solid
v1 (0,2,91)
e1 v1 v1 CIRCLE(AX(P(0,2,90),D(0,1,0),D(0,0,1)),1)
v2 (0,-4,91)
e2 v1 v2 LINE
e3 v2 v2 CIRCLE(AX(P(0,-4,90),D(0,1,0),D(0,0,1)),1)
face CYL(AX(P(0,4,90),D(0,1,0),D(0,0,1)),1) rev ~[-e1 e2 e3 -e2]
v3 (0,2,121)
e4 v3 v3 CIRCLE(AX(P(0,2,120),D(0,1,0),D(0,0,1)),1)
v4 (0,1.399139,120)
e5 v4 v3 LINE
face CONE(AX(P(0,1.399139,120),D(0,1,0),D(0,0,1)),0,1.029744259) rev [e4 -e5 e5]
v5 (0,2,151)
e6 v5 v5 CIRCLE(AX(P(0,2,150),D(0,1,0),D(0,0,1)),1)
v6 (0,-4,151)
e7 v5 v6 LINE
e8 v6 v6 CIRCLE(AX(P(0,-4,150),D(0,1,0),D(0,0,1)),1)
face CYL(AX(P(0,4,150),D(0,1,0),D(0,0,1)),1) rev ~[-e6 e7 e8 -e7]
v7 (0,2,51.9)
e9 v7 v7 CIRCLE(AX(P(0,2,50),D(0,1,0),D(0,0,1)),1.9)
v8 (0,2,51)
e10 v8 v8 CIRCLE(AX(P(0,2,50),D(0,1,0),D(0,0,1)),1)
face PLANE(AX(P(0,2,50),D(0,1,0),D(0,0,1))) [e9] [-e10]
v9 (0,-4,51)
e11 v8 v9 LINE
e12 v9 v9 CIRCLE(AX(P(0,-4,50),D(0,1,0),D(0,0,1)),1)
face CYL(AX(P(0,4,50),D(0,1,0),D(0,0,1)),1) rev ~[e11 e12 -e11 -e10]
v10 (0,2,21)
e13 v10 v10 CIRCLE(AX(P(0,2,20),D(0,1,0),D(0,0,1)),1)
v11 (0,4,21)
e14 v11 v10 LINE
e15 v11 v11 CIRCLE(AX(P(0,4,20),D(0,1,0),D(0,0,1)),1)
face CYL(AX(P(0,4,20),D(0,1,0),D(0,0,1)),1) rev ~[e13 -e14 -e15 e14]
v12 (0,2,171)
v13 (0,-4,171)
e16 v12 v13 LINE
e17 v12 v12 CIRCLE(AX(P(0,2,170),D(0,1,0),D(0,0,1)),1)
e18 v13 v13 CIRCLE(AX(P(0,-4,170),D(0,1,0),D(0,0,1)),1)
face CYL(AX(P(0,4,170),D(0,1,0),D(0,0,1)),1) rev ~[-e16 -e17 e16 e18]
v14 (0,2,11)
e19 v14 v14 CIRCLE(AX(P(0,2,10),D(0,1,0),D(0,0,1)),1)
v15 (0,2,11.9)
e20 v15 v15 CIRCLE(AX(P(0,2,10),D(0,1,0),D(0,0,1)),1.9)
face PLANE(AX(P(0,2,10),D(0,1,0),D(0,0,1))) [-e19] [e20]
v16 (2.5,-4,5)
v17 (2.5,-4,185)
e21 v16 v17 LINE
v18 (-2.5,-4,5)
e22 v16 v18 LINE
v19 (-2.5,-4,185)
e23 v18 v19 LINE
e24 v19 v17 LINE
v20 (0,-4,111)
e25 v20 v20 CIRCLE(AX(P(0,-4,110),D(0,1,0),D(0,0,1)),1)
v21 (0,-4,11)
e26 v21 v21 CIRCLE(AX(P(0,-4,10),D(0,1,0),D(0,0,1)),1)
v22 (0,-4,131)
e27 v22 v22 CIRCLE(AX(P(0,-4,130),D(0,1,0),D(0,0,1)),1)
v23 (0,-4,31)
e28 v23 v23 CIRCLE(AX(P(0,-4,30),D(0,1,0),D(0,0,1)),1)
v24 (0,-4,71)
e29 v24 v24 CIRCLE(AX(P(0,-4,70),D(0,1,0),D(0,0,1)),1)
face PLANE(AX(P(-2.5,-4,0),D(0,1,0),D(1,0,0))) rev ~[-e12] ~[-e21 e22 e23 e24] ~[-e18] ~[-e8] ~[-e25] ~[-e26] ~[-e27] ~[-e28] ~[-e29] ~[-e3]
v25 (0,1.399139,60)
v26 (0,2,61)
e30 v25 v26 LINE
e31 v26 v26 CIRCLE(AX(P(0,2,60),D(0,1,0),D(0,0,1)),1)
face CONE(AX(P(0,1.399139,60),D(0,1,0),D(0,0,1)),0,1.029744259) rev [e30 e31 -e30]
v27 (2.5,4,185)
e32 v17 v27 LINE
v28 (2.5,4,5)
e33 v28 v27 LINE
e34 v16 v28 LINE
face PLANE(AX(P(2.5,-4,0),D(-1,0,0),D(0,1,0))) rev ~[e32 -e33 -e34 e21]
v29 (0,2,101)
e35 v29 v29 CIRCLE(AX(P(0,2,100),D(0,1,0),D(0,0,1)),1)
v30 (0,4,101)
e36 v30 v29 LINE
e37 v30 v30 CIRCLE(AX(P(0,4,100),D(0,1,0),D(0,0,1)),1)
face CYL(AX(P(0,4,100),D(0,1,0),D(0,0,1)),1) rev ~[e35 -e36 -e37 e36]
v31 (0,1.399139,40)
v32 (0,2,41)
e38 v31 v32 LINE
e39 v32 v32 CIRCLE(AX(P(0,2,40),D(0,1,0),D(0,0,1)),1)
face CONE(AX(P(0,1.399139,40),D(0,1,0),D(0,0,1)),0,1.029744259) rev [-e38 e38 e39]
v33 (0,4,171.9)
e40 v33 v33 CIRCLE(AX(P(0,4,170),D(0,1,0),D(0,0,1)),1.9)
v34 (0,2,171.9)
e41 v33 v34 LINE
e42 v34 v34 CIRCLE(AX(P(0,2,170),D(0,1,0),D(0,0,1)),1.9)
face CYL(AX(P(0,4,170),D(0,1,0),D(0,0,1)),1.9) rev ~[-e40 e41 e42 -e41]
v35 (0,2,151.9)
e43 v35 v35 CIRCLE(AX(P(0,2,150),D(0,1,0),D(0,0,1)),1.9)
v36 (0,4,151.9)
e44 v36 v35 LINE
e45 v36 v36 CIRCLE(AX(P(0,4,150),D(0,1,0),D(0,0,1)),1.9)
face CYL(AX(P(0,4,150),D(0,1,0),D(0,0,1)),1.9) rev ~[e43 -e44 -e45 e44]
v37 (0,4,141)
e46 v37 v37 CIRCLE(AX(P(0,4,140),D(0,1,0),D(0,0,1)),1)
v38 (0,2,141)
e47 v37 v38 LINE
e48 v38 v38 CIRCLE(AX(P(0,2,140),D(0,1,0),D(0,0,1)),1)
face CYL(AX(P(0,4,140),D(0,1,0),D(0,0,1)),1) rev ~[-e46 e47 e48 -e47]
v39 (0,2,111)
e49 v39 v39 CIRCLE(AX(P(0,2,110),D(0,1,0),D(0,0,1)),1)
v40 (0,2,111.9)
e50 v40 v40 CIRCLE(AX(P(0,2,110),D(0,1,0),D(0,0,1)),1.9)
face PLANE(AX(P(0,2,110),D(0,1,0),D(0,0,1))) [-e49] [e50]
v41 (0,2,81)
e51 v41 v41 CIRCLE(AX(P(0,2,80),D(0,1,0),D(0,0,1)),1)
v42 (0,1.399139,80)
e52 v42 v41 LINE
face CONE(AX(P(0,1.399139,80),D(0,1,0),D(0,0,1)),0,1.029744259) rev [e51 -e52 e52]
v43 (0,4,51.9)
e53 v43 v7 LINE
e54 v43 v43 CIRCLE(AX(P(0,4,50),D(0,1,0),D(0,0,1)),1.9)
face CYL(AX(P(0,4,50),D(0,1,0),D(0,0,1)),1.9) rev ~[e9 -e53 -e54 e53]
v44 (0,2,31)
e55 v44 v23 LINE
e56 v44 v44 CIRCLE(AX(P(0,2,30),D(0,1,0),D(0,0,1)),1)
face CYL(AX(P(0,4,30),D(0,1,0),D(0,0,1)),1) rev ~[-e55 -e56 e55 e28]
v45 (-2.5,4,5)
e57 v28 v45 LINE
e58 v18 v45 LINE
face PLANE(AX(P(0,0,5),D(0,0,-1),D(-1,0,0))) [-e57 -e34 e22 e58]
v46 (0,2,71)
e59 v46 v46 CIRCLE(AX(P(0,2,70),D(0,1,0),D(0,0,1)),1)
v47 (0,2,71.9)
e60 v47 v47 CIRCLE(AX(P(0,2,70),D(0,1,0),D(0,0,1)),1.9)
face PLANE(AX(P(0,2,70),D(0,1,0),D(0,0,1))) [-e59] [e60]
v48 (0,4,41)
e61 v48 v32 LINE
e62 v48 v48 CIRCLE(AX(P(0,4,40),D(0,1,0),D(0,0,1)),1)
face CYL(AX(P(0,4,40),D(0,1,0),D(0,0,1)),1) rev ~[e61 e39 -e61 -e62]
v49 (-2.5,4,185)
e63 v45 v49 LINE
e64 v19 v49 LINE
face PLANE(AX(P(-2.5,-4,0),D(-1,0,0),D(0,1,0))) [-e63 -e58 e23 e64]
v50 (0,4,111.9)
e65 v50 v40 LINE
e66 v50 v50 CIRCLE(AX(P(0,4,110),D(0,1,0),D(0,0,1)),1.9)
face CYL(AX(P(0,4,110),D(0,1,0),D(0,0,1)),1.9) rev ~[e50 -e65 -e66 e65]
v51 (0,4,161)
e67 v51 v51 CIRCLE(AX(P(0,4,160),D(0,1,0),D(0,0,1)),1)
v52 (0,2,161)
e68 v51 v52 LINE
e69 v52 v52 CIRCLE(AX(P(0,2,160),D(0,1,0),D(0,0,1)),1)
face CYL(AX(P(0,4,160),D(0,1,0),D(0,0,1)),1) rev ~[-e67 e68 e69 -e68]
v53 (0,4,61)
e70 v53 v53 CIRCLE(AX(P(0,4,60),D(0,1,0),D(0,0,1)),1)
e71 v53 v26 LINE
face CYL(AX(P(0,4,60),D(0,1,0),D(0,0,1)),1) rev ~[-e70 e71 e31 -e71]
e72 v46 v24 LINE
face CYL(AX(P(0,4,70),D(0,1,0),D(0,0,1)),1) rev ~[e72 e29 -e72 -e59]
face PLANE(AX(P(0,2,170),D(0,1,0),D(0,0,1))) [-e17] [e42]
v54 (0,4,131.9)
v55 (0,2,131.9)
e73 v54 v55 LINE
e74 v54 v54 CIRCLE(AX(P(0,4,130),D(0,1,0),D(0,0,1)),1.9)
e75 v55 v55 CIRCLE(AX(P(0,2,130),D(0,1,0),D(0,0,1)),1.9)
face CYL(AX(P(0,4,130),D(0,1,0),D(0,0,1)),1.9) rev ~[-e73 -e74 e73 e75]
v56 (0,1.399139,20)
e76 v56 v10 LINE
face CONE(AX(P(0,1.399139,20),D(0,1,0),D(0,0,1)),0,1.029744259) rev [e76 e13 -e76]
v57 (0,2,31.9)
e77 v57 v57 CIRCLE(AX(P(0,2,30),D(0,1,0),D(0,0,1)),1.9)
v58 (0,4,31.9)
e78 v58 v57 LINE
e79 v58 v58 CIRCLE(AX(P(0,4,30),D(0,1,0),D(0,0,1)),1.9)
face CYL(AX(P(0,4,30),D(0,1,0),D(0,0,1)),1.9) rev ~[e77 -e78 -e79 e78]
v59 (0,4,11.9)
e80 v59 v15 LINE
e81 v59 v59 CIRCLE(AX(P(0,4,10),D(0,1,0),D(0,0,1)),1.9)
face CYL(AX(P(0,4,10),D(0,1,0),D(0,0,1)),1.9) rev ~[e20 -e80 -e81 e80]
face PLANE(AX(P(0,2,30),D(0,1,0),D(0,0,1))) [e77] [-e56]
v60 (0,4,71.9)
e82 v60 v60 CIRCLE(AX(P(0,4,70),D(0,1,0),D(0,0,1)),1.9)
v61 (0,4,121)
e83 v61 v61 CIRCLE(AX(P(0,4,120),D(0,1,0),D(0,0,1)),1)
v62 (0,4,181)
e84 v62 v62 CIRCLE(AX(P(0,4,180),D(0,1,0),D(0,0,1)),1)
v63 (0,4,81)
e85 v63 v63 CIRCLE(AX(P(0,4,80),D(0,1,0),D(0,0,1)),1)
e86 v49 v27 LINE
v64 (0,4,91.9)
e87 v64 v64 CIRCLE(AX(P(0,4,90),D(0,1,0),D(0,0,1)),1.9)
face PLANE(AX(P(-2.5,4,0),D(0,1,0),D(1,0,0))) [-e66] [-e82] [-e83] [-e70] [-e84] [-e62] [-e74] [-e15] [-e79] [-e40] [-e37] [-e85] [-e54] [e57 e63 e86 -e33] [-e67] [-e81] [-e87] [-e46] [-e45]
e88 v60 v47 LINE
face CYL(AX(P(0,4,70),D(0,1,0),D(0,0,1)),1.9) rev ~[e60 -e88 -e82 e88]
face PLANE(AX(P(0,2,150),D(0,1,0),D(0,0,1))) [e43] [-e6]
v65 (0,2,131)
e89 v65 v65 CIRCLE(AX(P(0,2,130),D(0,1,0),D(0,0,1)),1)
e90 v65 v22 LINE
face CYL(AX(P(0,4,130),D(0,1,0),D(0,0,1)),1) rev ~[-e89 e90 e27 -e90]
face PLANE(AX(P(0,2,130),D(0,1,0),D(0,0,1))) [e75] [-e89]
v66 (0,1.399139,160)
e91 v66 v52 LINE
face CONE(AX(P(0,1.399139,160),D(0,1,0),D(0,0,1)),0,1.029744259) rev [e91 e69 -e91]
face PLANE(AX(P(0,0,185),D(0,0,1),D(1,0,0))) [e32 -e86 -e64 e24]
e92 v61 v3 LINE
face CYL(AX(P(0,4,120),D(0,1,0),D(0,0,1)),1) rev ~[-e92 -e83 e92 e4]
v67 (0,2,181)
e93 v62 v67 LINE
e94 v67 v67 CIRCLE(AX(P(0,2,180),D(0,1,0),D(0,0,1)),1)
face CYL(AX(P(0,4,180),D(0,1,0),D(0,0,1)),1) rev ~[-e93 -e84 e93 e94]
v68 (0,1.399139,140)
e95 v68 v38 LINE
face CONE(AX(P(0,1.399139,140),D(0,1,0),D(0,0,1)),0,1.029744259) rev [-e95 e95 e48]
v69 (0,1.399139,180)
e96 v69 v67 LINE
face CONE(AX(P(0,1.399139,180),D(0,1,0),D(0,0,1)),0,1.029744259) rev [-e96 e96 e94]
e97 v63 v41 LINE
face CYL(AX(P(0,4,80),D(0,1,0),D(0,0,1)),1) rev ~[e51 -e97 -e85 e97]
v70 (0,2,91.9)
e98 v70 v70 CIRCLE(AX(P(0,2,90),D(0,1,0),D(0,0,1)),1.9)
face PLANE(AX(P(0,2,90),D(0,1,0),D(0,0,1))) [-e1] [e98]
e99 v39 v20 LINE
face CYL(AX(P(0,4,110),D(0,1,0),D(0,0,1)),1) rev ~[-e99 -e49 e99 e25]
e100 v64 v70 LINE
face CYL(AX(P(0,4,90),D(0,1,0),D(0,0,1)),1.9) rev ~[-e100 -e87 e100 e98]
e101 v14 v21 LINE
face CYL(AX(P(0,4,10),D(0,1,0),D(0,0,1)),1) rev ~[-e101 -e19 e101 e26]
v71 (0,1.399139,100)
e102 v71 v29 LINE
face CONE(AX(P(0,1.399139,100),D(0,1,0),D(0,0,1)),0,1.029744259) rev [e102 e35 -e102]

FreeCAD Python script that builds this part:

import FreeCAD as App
import Part
import Sketcher
from FreeCAD import Vector
Q = App.Units.Quantity

doc = App.newDocument("Part")
body = doc.addObject("PartDesign::Body", "Body")

sketch1 = body.newObject("Sketcher::SketchObject", "Sketch")
sketch1.AttachmentSupport = (doc.getObject("XY_Plane"), [""])
sketch1.MapMode = "FlatFace"
sketch1.addGeometry([
    Part.LineSegment(Vector(-2, 4, 0), Vector(-2, -4, 0)),
    Part.LineSegment(Vector(-2, -4, 0), Vector(2, -4, 0)),
    Part.LineSegment(Vector(2, -4, 0), Vector(2, 4, 0)),
    Part.LineSegment(Vector(2, 4, 0), Vector(-2, 4, 0)),
], False)
sketch1.addConstraint([
    Sketcher.Constraint("Coincident", 0, 2, 1, 1),
    Sketcher.Constraint("Coincident", 1, 2, 2, 1),
    Sketcher.Constraint("Coincident", 2, 2, 3, 1),
    Sketcher.Constraint("Coincident", 3, 2, 0, 1),
    Sketcher.Constraint("Vertical", 0),
    Sketcher.Constraint("Horizontal", 1),
    Sketcher.Constraint("Vertical", 2),
    Sketcher.Constraint("Horizontal", 3),
    Sketcher.Constraint("Symmetric", 0, 2, 2, 2, -1, 1),
    Sketcher.Constraint("DistanceX", 1, 1, 1, 2, Q("5 mm")),
    Sketcher.Constraint("DistanceY", 0, 2, 0, 1, Q("8 mm")),
])
pad1 = body.newObject("PartDesign::Pad", "Pad")
pad1.Profile = sketch1
pad1.Length = 185

sketch2 = body.newObject("Sketcher::SketchObject", "Sketch001")
sketch2.AttachmentSupport = (doc.getObject("XZ_Plane"), [""])
sketch2.MapMode = "FlatFace"
sketch2.AttachmentOffset = App.Placement(Vector(0, 0, -4), App.Rotation())
sketch2.addGeometry([
    Part.Circle(Vector(0, 20, 0), Vector(0, 0, 1), 1),
    Part.Circle(Vector(0, 40, 0), Vector(0, 0, 1), 1),
    Part.Circle(Vector(0, 60, 0), Vector(0, 0, 1), 1),
    Part.Circle(Vector(0, 80, 0), Vector(0, 0, 1), 1),
    Part.Circle(Vector(0, 100, 0), Vector(0, 0, 1), 1),
    Part.Circle(Vector(0, 120, 0), Vector(0, 0, 1), 1),
    Part.Circle(Vector(0, 140, 0), Vector(0, 0, 1), 1),
    Part.Circle(Vector(0, 160, 0), Vector(0, 0, 1), 1),
    Part.Circle(Vector(0, 180, 0), Vector(0, 0, 1), 1),
], False)
sketch2.addConstraint([
    Sketcher.Constraint("Equal", 0, 1),
    Sketcher.Constraint("Equal", 1, 2),
    Sketcher.Constraint("Equal", 2, 3),
    Sketcher.Constraint("Equal", 3, 4),
    Sketcher.Constraint("Equal", 4, 5),
    Sketcher.Constraint("Equal", 5, 6),
    Sketcher.Constraint("Equal", 6, 7),
    Sketcher.Constraint("Equal", 7, 8),
    Sketcher.Constraint("PointOnObject", 0, 3, -2),
    Sketcher.Constraint("PointOnObject", 1, 3, -2),
    Sketcher.Constraint("PointOnObject", 2, 3, -2),
    Sketcher.Constraint("PointOnObject", 3, 3, -2),
    Sketcher.Constraint("PointOnObject", 4, 3, -2),
    Sketcher.Constraint("PointOnObject", 5, 3, -2),
    Sketcher.Constraint("PointOnObject", 6, 3, -2),
    Sketcher.Constraint("PointOnObject", 7, 3, -2),
    Sketcher.Constraint("PointOnObject", 8, 3, -2),
    Sketcher.Constraint("Diameter", 0, Q("2 mm")),
    Sketcher.Constraint("DistanceY", -1, 1, 0, 3, Q("20 mm")),
    Sketcher.Constraint("DistanceY", -1, 1, 1, 3, Q("40 mm")),
    Sketcher.Constraint("DistanceY", -1, 1, 2, 3, Q("60 mm")),
    Sketcher.Constraint("DistanceY", -1, 1, 3, 3, Q("80 mm")),
    Sketcher.Constraint("DistanceY", -1, 1, 4, 3, Q("100 mm")),
    Sketcher.Constraint("DistanceY", -1, 1, 5, 3, Q("120 mm")),
    Sketcher.Constraint("DistanceY", -1, 1, 6, 3, Q("140 mm")),
    Sketcher.Constraint("DistanceY", -1, 1, 7, 3, Q("160 mm")),
    Sketcher.Constraint("DistanceY", -1, 1, 8, 3, Q("180 mm")),
])
pocket1 = body.newObject("PartDesign::Pocket", "Pocket")
pocket1.Profile = sketch2
pocket1.Length = 2
pocket1.Reversed = True

sketch3 = body.newObject("Sketcher::SketchObject", "Sketch002")
sketch3.AttachmentSupport = (doc.getObject("YZ_Plane"), [""])
sketch3.MapMode = "FlatFace"
sketch3.addGeometry([
    Part.LineSegment(Vector(1.4, 20, 0), Vector(4, 20, 0)),
    Part.LineSegment(Vector(4, 20, 0), Vector(4, 21, 0)),
    Part.LineSegment(Vector(4, 21, 0), Vector(2, 21, 0)),
    Part.LineSegment(Vector(2, 21, 0), Vector(1.4, 20, 0)),
], False)
sketch3.addGeometry(Part.LineSegment(Vector(4, 20, 0), Vector(1.4, 20, 0)), True)
sketch3.addConstraint([
    Sketcher.Constraint("Coincident", 0, 2, 1, 1),
    Sketcher.Constraint("Coincident", 1, 2, 2, 1),
    Sketcher.Constraint("Coincident", 2, 2, 3, 1),
    Sketcher.Constraint("Coincident", 3, 2, 0, 1),
    Sketcher.Constraint("Horizontal", 0),
    Sketcher.Constraint("Vertical", 1),
    Sketcher.Constraint("Horizontal", 2),
    Sketcher.Constraint("Horizontal", 4),
    Sketcher.Constraint("Coincident", 4, 1, 0, 2),
    Sketcher.Constraint("Equal", 0, 4),
    Sketcher.Constraint("DistanceX", 2, 2, 2, 1, Q("2 mm")),
    Sketcher.Constraint("DistanceY", 1, 1, 1, 2, Q("1 mm")),
    Sketcher.Constraint("Angle", 3, Q("-121 deg")),
    Sketcher.Constraint("DistanceX", -1, 1, 0, 2, Q("4 mm")),
    Sketcher.Constraint("DistanceY", -1, 1, 0, 2, Q("20 mm")),
])
groove = body.newObject("PartDesign::Groove", "Groove")
groove.Profile = sketch3
groove.ReferenceAxis = (sketch3, ["Axis0"])
groove.Angle = 360
doc.recompute()

linearpattern = body.newObject("PartDesign::LinearPattern", "LinearPattern")
linearpattern.Originals = [groove]
linearpattern.Direction = (doc.getObject("Z_Axis"), [""])
linearpattern.Mode = "offset"
linearpattern.Offset = 20
linearpattern.Occurrences = 2
body.Tip = linearpattern
doc.recompute()

linearpattern2 = body.newObject("PartDesign::LinearPattern", "LinearPattern001")
linearpattern2.Originals = [groove]
linearpattern2.Direction = (doc.getObject("Z_Axis"), [""])
linearpattern2.Mode = "offset"
linearpattern2.Offset = 20
linearpattern2.Occurrences = 8
body.Tip = linearpattern2

sketch4 = body.newObject("Sketcher::SketchObject", "Sketch003")
sketch4.AttachmentSupport = (doc.getObject("YZ_Plane"), [""])
sketch4.MapMode = "FlatFace"
sketch4.addGeometry([
    Part.LineSegment(Vector(1.4, 60, 0), Vector(4, 60, 0)),
    Part.LineSegment(Vector(4, 60, 0), Vector(4, 61, 0)),
    Part.LineSegment(Vector(4, 61, 0), Vector(2, 61, 0)),
    Part.LineSegment(Vector(2, 61, 0), Vector(1.4, 60, 0)),
], False)
sketch4.addGeometry(Part.LineSegment(Vector(4, 60, 0), Vector(1.4, 60, 0)), True)
sketch4.addConstraint([
    Sketcher.Constraint("Coincident", 0, 2, 1, 1),
    Sketcher.Constraint("Coincident", 1, 2, 2, 1),
    Sketcher.Constraint("Coincident", 2, 2, 3, 1),
    Sketcher.Constraint("Coincident", 3, 2, 0, 1),
    Sketcher.Constraint("Horizontal", 0),
    Sketcher.Constraint("Vertical", 1),
    Sketcher.Constraint("Horizontal", 2),
    Sketcher.Constraint("Horizontal", 4),
    Sketcher.Constraint("Coincident", 4, 1, 0, 2),
    Sketcher.Constraint("Equal", 0, 4),
    Sketcher.Constraint("DistanceX", 2, 2, 2, 1, Q("2 mm")),
    Sketcher.Constraint("DistanceY", 1, 1, 1, 2, Q("1 mm")),
    Sketcher.Constraint("Angle", 3, Q("-121 deg")),
    Sketcher.Constraint("DistanceX", -1, 1, 0, 2, Q("4 mm")),
    Sketcher.Constraint("DistanceY", -1, 1, 0, 2, Q("60 mm")),
])
groove2 = body.newObject("PartDesign::Groove", "Groove001")
groove2.Profile = sketch4
groove2.ReferenceAxis = (sketch4, ["Axis0"])
groove2.Angle = 360

sketch5 = body.newObject("Sketcher::SketchObject", "Sketch004")
sketch5.AttachmentSupport = (doc.getObject("YZ_Plane"), [""])
sketch5.MapMode = "FlatFace"
sketch5.addGeometry([
    Part.LineSegment(Vector(1.4, 80, 0), Vector(4, 80, 0)),
    Part.LineSegment(Vector(4, 80, 0), Vector(4, 81, 0)),
    Part.LineSegment(Vector(4, 81, 0), Vector(2, 81, 0)),
    Part.LineSegment(Vector(2, 81, 0), Vector(1.4, 80, 0)),
], False)
sketch5.addGeometry(Part.LineSegment(Vector(4, 80, 0), Vector(1.4, 80, 0)), True)
sketch5.addConstraint([
    Sketcher.Constraint("Coincident", 0, 2, 1, 1),
    Sketcher.Constraint("Coincident", 1, 2, 2, 1),
    Sketcher.Constraint("Coincident", 2, 2, 3, 1),
    Sketcher.Constraint("Coincident", 3, 2, 0, 1),
    Sketcher.Constraint("Horizontal", 0),
    Sketcher.Constraint("Vertical", 1),
    Sketcher.Constraint("Horizontal", 2),
    Sketcher.Constraint("Horizontal", 4),
    Sketcher.Constraint("Coincident", 4, 1, 0, 2),
    Sketcher.Constraint("Equal", 0, 4),
    Sketcher.Constraint("DistanceX", 2, 2, 2, 1, Q("2 mm")),
    Sketcher.Constraint("DistanceY", 1, 1, 1, 2, Q("1 mm")),
    Sketcher.Constraint("Angle", 3, Q("-121 deg")),
    Sketcher.Constraint("DistanceX", -1, 1, 0, 2, Q("4 mm")),
    Sketcher.Constraint("DistanceY", -1, 1, 0, 2, Q("80 mm")),
])
groove3 = body.newObject("PartDesign::Groove", "Groove002")
groove3.Profile = sketch5
groove3.ReferenceAxis = (sketch5, ["Axis0"])
groove3.Angle = 360

sketch6 = body.newObject("Sketcher::SketchObject", "Sketch005")
sketch6.AttachmentSupport = (doc.getObject("YZ_Plane"), [""])
sketch6.MapMode = "FlatFace"
sketch6.addGeometry([
    Part.LineSegment(Vector(1.4, 100, 0), Vector(4, 100, 0)),
    Part.LineSegment(Vector(4, 100, 0), Vector(4, 101, 0)),
    Part.LineSegment(Vector(4, 101, 0), Vector(2, 101, 0)),
    Part.LineSegment(Vector(2, 101, 0), Vector(1.4, 100, 0)),
], False)
sketch6.addGeometry(Part.LineSegment(Vector(4, 100, 0), Vector(1.4, 100, 0)), True)
sketch6.addConstraint([
    Sketcher.Constraint("Coincident", 0, 2, 1, 1),
    Sketcher.Constraint("Coincident", 1, 2, 2, 1),
    Sketcher.Constraint("Coincident", 2, 2, 3, 1),
    Sketcher.Constraint("Coincident", 3, 2, 0, 1),
    Sketcher.Constraint("Horizontal", 0),
    Sketcher.Constraint("Vertical", 1),
    Sketcher.Constraint("Horizontal", 2),
    Sketcher.Constraint("Horizontal", 4),
    Sketcher.Constraint("Coincident", 4, 1, 0, 2),
    Sketcher.Constraint("Equal", 0, 4),
    Sketcher.Constraint("DistanceX", 2, 2, 2, 1, Q("2 mm")),
    Sketcher.Constraint("DistanceY", 1, 1, 1, 2, Q("1 mm")),
    Sketcher.Constraint("Angle", 3, Q("-121 deg")),
    Sketcher.Constraint("DistanceX", -1, 1, 0, 2, Q("4 mm")),
    Sketcher.Constraint("DistanceY", -1, 1, 0, 2, Q("100 mm")),
])
groove4 = body.newObject("PartDesign::Groove", "Groove003")
groove4.Profile = sketch6
groove4.ReferenceAxis = (sketch6, ["Axis0"])
groove4.Angle = 360

sketch7 = body.newObject("Sketcher::SketchObject", "Sketch006")
sketch7.AttachmentSupport = (doc.getObject("YZ_Plane"), [""])
sketch7.MapMode = "FlatFace"
sketch7.addGeometry([
    Part.LineSegment(Vector(1.4, 120, 0), Vector(4, 120, 0)),
    Part.LineSegment(Vector(4, 120, 0), Vector(4, 121, 0)),
    Part.LineSegment(Vector(4, 121, 0), Vector(2, 121, 0)),
    Part.LineSegment(Vector(2, 121, 0), Vector(1.4, 120, 0)),
], False)
sketch7.addGeometry(Part.LineSegment(Vector(4, 120, 0), Vector(1.4, 120, 0)), True)
sketch7.addConstraint([
    Sketcher.Constraint("Coincident", 0, 2, 1, 1),
    Sketcher.Constraint("Coincident", 1, 2, 2, 1),
    Sketcher.Constraint("Coincident", 2, 2, 3, 1),
    Sketcher.Constraint("Coincident", 3, 2, 0, 1),
    Sketcher.Constraint("Horizontal", 0),
    Sketcher.Constraint("Vertical", 1),
    Sketcher.Constraint("Horizontal", 2),
    Sketcher.Constraint("Horizontal", 4),
    Sketcher.Constraint("Coincident", 4, 1, 0, 2),
    Sketcher.Constraint("Equal", 0, 4),
    Sketcher.Constraint("DistanceX", 2, 2, 2, 1, Q("2 mm")),
    Sketcher.Constraint("DistanceY", 1, 1, 1, 2, Q("1 mm")),
    Sketcher.Constraint("Angle", 3, Q("-121 deg")),
    Sketcher.Constraint("DistanceX", -1, 1, 0, 2, Q("4 mm")),
    Sketcher.Constraint("DistanceY", -1, 1, 0, 2, Q("120 mm")),
])
groove5 = body.newObject("PartDesign::Groove", "Groove004")
groove5.Profile = sketch7
groove5.ReferenceAxis = (sketch7, ["Axis0"])
groove5.Angle = 360

sketch8 = body.newObject("Sketcher::SketchObject", "Sketch007")
sketch8.AttachmentSupport = (doc.getObject("YZ_Plane"), [""])
sketch8.MapMode = "FlatFace"
sketch8.addGeometry([
    Part.LineSegment(Vector(1.4, 140, 0), Vector(4, 140, 0)),
    Part.LineSegment(Vector(4, 140, 0), Vector(4, 141, 0)),
    Part.LineSegment(Vector(4, 141, 0), Vector(2, 141, 0)),
    Part.LineSegment(Vector(2, 141, 0), Vector(1.4, 140, 0)),
], False)
sketch8.addGeometry(Part.LineSegment(Vector(4, 140, 0), Vector(1.4, 140, 0)), True)
sketch8.addConstraint([
    Sketcher.Constraint("Coincident", 0, 2, 1, 1),
    Sketcher.Constraint("Coincident", 1, 2, 2, 1),
    Sketcher.Constraint("Coincident", 2, 2, 3, 1),
    Sketcher.Constraint("Coincident", 3, 2, 0, 1),
    Sketcher.Constraint("Horizontal", 0),
    Sketcher.Constraint("Vertical", 1),
    Sketcher.Constraint("Horizontal", 2),
    Sketcher.Constraint("Horizontal", 4),
    Sketcher.Constraint("Coincident", 4, 1, 0, 2),
    Sketcher.Constraint("Equal", 0, 4),
    Sketcher.Constraint("DistanceX", 2, 2, 2, 1, Q("2 mm")),
    Sketcher.Constraint("DistanceY", 1, 1, 1, 2, Q("1 mm")),
    Sketcher.Constraint("Angle", 3, Q("-121 deg")),
    Sketcher.Constraint("DistanceX", -1, 1, 0, 2, Q("4 mm")),
    Sketcher.Constraint("DistanceY", -1, 1, 0, 2, Q("140 mm")),
])
groove6 = body.newObject("PartDesign::Groove", "Groove005")
groove6.Profile = sketch8
groove6.ReferenceAxis = (sketch8, ["Axis0"])
groove6.Angle = 360

sketch9 = body.newObject("Sketcher::SketchObject", "Sketch008")
sketch9.AttachmentSupport = (doc.getObject("YZ_Plane"), [""])
sketch9.MapMode = "FlatFace"
sketch9.addGeometry([
    Part.LineSegment(Vector(1.4, 160, 0), Vector(4, 160, 0)),
    Part.LineSegment(Vector(4, 160, 0), Vector(4, 161, 0)),
    Part.LineSegment(Vector(4, 161, 0), Vector(2, 161, 0)),
    Part.LineSegment(Vector(2, 161, 0), Vector(1.4, 160, 0)),
], False)
sketch9.addGeometry(Part.LineSegment(Vector(4, 160, 0), Vector(1.4, 160, 0)), True)
sketch9.addConstraint([
    Sketcher.Constraint("Coincident", 0, 2, 1, 1),
    Sketcher.Constraint("Coincident", 1, 2, 2, 1),
    Sketcher.Constraint("Coincident", 2, 2, 3, 1),
    Sketcher.Constraint("Coincident", 3, 2, 0, 1),
    Sketcher.Constraint("Horizontal", 0),
    Sketcher.Constraint("Vertical", 1),
    Sketcher.Constraint("Horizontal", 2),
    Sketcher.Constraint("Horizontal", 4),
    Sketcher.Constraint("Coincident", 4, 1, 0, 2),
    Sketcher.Constraint("Equal", 0, 4),
    Sketcher.Constraint("DistanceX", 2, 2, 2, 1, Q("2 mm")),
    Sketcher.Constraint("DistanceY", 1, 1, 1, 2, Q("1 mm")),
    Sketcher.Constraint("Angle", 3, Q("-121 deg")),
    Sketcher.Constraint("DistanceX", -1, 1, 0, 2, Q("4 mm")),
    Sketcher.Constraint("DistanceY", -1, 1, 0, 2, Q("160 mm")),
])
groove7 = body.newObject("PartDesign::Groove", "Groove006")
groove7.Profile = sketch9
groove7.ReferenceAxis = (sketch9, ["Axis0"])
groove7.Angle = 360

sketch10 = body.newObject("Sketcher::SketchObject", "Sketch009")
sketch10.AttachmentSupport = (doc.getObject("YZ_Plane"), [""])
sketch10.MapMode = "FlatFace"
sketch10.addGeometry([
    Part.LineSegment(Vector(1.4, 180, 0), Vector(4, 180, 0)),
    Part.LineSegment(Vector(4, 180, 0), Vector(4, 181, 0)),
    Part.LineSegment(Vector(4, 181, 0), Vector(2, 181, 0)),
    Part.LineSegment(Vector(2, 181, 0), Vector(1.4, 180, 0)),
], False)
sketch10.addGeometry(Part.LineSegment(Vector(4, 180, 0), Vector(1.4, 180, 0)), True)
sketch10.addConstraint([
    Sketcher.Constraint("Coincident", 0, 2, 1, 1),
    Sketcher.Constraint("Coincident", 1, 2, 2, 1),
    Sketcher.Constraint("Coincident", 2, 2, 3, 1),
    Sketcher.Constraint("Coincident", 3, 2, 0, 1),
    Sketcher.Constraint("Horizontal", 0),
    Sketcher.Constraint("Vertical", 1),
    Sketcher.Constraint("Horizontal", 2),
    Sketcher.Constraint("Horizontal", 4),
    Sketcher.Constraint("Coincident", 4, 1, 0, 2),
    Sketcher.Constraint("Equal", 0, 4),
    Sketcher.Constraint("DistanceX", 2, 2, 2, 1, Q("2 mm")),
    Sketcher.Constraint("DistanceY", 1, 1, 1, 2, Q("1 mm")),
    Sketcher.Constraint("Angle", 3, Q("-121 deg")),
    Sketcher.Constraint("DistanceX", -1, 1, 0, 2, Q("4 mm")),
    Sketcher.Constraint("DistanceY", -1, 1, 0, 2, Q("180 mm")),
])
groove8 = body.newObject("PartDesign::Groove", "Groove007")
groove8.Profile = sketch10
groove8.ReferenceAxis = (sketch10, ["Axis0"])
groove8.Angle = 360

sketch11 = body.newObject("Sketcher::SketchObject", "Sketch010")
sketch11.AttachmentSupport = (doc.getObject("XZ_Plane"), [""])
sketch11.MapMode = "FlatFace"
sketch11.AttachmentOffset = App.Placement(Vector(0, 0, -4), App.Rotation())
sketch11.addGeometry([
    Part.Circle(Vector(0, 30, 0), Vector(0, 0, 1), 1),
    Part.Circle(Vector(0, 50, 0), Vector(0, 0, 1), 1),
    Part.Circle(Vector(0, 70, 0), Vector(0, 0, 1), 1),
    Part.Circle(Vector(0, 90, 0), Vector(0, 0, 1), 1),
    Part.Circle(Vector(0, 110, 0), Vector(0, 0, 1), 1),
    Part.Circle(Vector(0, 130, 0), Vector(0, 0, 1), 1),
    Part.Circle(Vector(0, 150, 0), Vector(0, 0, 1), 1),
    Part.Circle(Vector(0, 170, 0), Vector(0, 0, 1), 1),
    Part.Circle(Vector(0, 190, 0), Vector(0, 0, 1), 1),
    Part.Circle(Vector(0, 10, 0), Vector(0, 0, 1), 1),
], False)
sketch11.addConstraint([
    Sketcher.Constraint("Equal", 0, 1),
    Sketcher.Constraint("Equal", 1, 2),
    Sketcher.Constraint("Equal", 2, 3),
    Sketcher.Constraint("Equal", 3, 4),
    Sketcher.Constraint("Equal", 4, 5),
    Sketcher.Constraint("Equal", 5, 6),
    Sketcher.Constraint("Equal", 6, 7),
    Sketcher.Constraint("Equal", 7, 8),
    Sketcher.Constraint("Equal", 8, 9),
    Sketcher.Constraint("PointOnObject", 0, 3, -2),
    Sketcher.Constraint("PointOnObject", 1, 3, -2),
    Sketcher.Constraint("PointOnObject", 2, 3, -2),
    Sketcher.Constraint("PointOnObject", 3, 3, -2),
    Sketcher.Constraint("PointOnObject", 4, 3, -2),
    Sketcher.Constraint("PointOnObject", 5, 3, -2),
    Sketcher.Constraint("PointOnObject", 6, 3, -2),
    Sketcher.Constraint("PointOnObject", 7, 3, -2),
    Sketcher.Constraint("PointOnObject", 8, 3, -2),
    Sketcher.Constraint("PointOnObject", 9, 3, -2),
    Sketcher.Constraint("Diameter", 0, Q("2 mm")),
    Sketcher.Constraint("DistanceY", -1, 1, 0, 3, Q("30 mm")),
    Sketcher.Constraint("DistanceY", -1, 1, 1, 3, Q("50 mm")),
    Sketcher.Constraint("DistanceY", -1, 1, 2, 3, Q("70 mm")),
    Sketcher.Constraint("DistanceY", -1, 1, 3, 3, Q("90 mm")),
    Sketcher.Constraint("DistanceY", -1, 1, 4, 3, Q("110 mm")),
    Sketcher.Constraint("DistanceY", -1, 1, 5, 3, Q("130 mm")),
    Sketcher.Constraint("DistanceY", -1, 1, 6, 3, Q("150 mm")),
    Sketcher.Constraint("DistanceY", -1, 1, 7, 3, Q("170 mm")),
    Sketcher.Constraint("DistanceY", -1, 1, 8, 3, Q("190 mm")),
    Sketcher.Constraint("DistanceY", -1, 1, 9, 3, Q("10 mm")),
])
pocket2 = body.newObject("PartDesign::Pocket", "Pocket001")
pocket2.Profile = sketch11
pocket2.Type = "ThroughAll"
pocket2.Reversed = True

sketch12 = body.newObject("Sketcher::SketchObject", "Sketch011")
sketch12.AttachmentSupport = (doc.getObject("XZ_Plane"), [""])
sketch12.MapMode = "FlatFace"
sketch12.AttachmentOffset = App.Placement(Vector(0, 0, -4), App.Rotation())
sketch12.addGeometry([
    Part.Circle(Vector(0, 10, 0), Vector(0, 0, 1), 1.9),
    Part.Circle(Vector(0, 30, 0), Vector(0, 0, 1), 1.9),
    Part.Circle(Vector(0, 50, 0), Vector(0, 0, 1), 1.9),
    Part.Circle(Vector(0, 70, 0), Vector(0, 0, 1), 1.9),
    Part.Circle(Vector(0, 90, 0), Vector(0, 0, 1), 1.9),
    Part.Circle(Vector(0, 110, 0), Vector(0, 0, 1), 1.9),
    Part.Circle(Vector(0, 130, 0), Vector(0, 0, 1), 1.9),
    Part.Circle(Vector(0, 150, 0), Vector(0, 0, 1), 1.9),
    Part.Circle(Vector(0, 170, 0), Vector(0, 0, 1), 1.9),
    Part.Circle(Vector(0, 190, 0), Vector(0, 0, 1), 1.9),
], False)
sketch12.addConstraint([
    Sketcher.Constraint("Equal", 0, 1),
    Sketcher.Constraint("Equal", 1, 2),
    Sketcher.Constraint("Equal", 2, 3),
    Sketcher.Constraint("Equal", 3, 4),
    Sketcher.Constraint("Equal", 4, 5),
    Sketcher.Constraint("Equal", 5, 6),
    Sketcher.Constraint("Equal", 6, 7),
    Sketcher.Constraint("Equal", 7, 8),
    Sketcher.Constraint("Equal", 8, 9),
    Sketcher.Constraint("PointOnObject", 0, 3, -2),
    Sketcher.Constraint("PointOnObject", 1, 3, -2),
    Sketcher.Constraint("PointOnObject", 2, 3, -2),
    Sketcher.Constraint("PointOnObject", 3, 3, -2),
    Sketcher.Constraint("PointOnObject", 4, 3, -2),
    Sketcher.Constraint("PointOnObject", 5, 3, -2),
    Sketcher.Constraint("PointOnObject", 6, 3, -2),
    Sketcher.Constraint("PointOnObject", 7, 3, -2),
    Sketcher.Constraint("PointOnObject", 8, 3, -2),
    Sketcher.Constraint("PointOnObject", 9, 3, -2),
    Sketcher.Constraint("Diameter", 0, Q("3.8 mm")),
    Sketcher.Constraint("DistanceY", -1, 1, 0, 3, Q("10 mm")),
    Sketcher.Constraint("DistanceY", -1, 1, 1, 3, Q("30 mm")),
    Sketcher.Constraint("DistanceY", -1, 1, 2, 3, Q("50 mm")),
    Sketcher.Constraint("DistanceY", -1, 1, 3, 3, Q("70 mm")),
    Sketcher.Constraint("DistanceY", -1, 1, 4, 3, Q("90 mm")),
    Sketcher.Constraint("DistanceY", -1, 1, 5, 3, Q("110 mm")),
    Sketcher.Constraint("DistanceY", -1, 1, 6, 3, Q("130 mm")),
    Sketcher.Constraint("DistanceY", -1, 1, 7, 3, Q("150 mm")),
    Sketcher.Constraint("DistanceY", -1, 1, 8, 3, Q("170 mm")),
    Sketcher.Constraint("DistanceY", -1, 1, 9, 3, Q("190 mm")),
])
pocket3 = body.newObject("PartDesign::Pocket", "Pocket002")
pocket3.Profile = sketch12
pocket3.Length = 2
pocket3.Reversed = True

sketch13 = body.newObject("Sketcher::SketchObject", "Sketch012")
sketch13.AttachmentSupport = (doc.getObject("XY_Plane"), [""])
sketch13.MapMode = "FlatFace"
sketch13.addGeometry([
    Part.LineSegment(Vector(2, 4, 0), Vector(2, -4, 0)),
    Part.LineSegment(Vector(2, -4, 0), Vector(-2, -4, 0)),
    Part.LineSegment(Vector(-2, -4, 0), Vector(-2, 4, 0)),
    Part.LineSegment(Vector(-2, 4, 0), Vector(2, 4, 0)),
], False)
sketch13.addConstraint([
    Sketcher.Constraint("Coincident", 0, 2, 1, 1),
    Sketcher.Constraint("Coincident", 1, 2, 2, 1),
    Sketcher.Constraint("Coincident", 2, 2, 3, 1),
    Sketcher.Constraint("Coincident", 3, 2, 0, 1),
    Sketcher.Constraint("Vertical", 0),
    Sketcher.Constraint("Horizontal", 1),
    Sketcher.Constraint("Vertical", 2),
    Sketcher.Constraint("Horizontal", 3),
    Sketcher.Constraint("Symmetric", 0, 2, 2, 2, -1, 1),
    Sketcher.Constraint("DistanceX", 1, 2, 1, 1, Q("5 mm")),
    Sketcher.Constraint("DistanceY", 0, 2, 0, 1, Q("8 mm")),
])
pocket4 = body.newObject("PartDesign::Pocket", "Pocket003")
pocket4.Profile = sketch13
pocket4.Length = 5
pocket4.Reversed = True

doc.recompute()
